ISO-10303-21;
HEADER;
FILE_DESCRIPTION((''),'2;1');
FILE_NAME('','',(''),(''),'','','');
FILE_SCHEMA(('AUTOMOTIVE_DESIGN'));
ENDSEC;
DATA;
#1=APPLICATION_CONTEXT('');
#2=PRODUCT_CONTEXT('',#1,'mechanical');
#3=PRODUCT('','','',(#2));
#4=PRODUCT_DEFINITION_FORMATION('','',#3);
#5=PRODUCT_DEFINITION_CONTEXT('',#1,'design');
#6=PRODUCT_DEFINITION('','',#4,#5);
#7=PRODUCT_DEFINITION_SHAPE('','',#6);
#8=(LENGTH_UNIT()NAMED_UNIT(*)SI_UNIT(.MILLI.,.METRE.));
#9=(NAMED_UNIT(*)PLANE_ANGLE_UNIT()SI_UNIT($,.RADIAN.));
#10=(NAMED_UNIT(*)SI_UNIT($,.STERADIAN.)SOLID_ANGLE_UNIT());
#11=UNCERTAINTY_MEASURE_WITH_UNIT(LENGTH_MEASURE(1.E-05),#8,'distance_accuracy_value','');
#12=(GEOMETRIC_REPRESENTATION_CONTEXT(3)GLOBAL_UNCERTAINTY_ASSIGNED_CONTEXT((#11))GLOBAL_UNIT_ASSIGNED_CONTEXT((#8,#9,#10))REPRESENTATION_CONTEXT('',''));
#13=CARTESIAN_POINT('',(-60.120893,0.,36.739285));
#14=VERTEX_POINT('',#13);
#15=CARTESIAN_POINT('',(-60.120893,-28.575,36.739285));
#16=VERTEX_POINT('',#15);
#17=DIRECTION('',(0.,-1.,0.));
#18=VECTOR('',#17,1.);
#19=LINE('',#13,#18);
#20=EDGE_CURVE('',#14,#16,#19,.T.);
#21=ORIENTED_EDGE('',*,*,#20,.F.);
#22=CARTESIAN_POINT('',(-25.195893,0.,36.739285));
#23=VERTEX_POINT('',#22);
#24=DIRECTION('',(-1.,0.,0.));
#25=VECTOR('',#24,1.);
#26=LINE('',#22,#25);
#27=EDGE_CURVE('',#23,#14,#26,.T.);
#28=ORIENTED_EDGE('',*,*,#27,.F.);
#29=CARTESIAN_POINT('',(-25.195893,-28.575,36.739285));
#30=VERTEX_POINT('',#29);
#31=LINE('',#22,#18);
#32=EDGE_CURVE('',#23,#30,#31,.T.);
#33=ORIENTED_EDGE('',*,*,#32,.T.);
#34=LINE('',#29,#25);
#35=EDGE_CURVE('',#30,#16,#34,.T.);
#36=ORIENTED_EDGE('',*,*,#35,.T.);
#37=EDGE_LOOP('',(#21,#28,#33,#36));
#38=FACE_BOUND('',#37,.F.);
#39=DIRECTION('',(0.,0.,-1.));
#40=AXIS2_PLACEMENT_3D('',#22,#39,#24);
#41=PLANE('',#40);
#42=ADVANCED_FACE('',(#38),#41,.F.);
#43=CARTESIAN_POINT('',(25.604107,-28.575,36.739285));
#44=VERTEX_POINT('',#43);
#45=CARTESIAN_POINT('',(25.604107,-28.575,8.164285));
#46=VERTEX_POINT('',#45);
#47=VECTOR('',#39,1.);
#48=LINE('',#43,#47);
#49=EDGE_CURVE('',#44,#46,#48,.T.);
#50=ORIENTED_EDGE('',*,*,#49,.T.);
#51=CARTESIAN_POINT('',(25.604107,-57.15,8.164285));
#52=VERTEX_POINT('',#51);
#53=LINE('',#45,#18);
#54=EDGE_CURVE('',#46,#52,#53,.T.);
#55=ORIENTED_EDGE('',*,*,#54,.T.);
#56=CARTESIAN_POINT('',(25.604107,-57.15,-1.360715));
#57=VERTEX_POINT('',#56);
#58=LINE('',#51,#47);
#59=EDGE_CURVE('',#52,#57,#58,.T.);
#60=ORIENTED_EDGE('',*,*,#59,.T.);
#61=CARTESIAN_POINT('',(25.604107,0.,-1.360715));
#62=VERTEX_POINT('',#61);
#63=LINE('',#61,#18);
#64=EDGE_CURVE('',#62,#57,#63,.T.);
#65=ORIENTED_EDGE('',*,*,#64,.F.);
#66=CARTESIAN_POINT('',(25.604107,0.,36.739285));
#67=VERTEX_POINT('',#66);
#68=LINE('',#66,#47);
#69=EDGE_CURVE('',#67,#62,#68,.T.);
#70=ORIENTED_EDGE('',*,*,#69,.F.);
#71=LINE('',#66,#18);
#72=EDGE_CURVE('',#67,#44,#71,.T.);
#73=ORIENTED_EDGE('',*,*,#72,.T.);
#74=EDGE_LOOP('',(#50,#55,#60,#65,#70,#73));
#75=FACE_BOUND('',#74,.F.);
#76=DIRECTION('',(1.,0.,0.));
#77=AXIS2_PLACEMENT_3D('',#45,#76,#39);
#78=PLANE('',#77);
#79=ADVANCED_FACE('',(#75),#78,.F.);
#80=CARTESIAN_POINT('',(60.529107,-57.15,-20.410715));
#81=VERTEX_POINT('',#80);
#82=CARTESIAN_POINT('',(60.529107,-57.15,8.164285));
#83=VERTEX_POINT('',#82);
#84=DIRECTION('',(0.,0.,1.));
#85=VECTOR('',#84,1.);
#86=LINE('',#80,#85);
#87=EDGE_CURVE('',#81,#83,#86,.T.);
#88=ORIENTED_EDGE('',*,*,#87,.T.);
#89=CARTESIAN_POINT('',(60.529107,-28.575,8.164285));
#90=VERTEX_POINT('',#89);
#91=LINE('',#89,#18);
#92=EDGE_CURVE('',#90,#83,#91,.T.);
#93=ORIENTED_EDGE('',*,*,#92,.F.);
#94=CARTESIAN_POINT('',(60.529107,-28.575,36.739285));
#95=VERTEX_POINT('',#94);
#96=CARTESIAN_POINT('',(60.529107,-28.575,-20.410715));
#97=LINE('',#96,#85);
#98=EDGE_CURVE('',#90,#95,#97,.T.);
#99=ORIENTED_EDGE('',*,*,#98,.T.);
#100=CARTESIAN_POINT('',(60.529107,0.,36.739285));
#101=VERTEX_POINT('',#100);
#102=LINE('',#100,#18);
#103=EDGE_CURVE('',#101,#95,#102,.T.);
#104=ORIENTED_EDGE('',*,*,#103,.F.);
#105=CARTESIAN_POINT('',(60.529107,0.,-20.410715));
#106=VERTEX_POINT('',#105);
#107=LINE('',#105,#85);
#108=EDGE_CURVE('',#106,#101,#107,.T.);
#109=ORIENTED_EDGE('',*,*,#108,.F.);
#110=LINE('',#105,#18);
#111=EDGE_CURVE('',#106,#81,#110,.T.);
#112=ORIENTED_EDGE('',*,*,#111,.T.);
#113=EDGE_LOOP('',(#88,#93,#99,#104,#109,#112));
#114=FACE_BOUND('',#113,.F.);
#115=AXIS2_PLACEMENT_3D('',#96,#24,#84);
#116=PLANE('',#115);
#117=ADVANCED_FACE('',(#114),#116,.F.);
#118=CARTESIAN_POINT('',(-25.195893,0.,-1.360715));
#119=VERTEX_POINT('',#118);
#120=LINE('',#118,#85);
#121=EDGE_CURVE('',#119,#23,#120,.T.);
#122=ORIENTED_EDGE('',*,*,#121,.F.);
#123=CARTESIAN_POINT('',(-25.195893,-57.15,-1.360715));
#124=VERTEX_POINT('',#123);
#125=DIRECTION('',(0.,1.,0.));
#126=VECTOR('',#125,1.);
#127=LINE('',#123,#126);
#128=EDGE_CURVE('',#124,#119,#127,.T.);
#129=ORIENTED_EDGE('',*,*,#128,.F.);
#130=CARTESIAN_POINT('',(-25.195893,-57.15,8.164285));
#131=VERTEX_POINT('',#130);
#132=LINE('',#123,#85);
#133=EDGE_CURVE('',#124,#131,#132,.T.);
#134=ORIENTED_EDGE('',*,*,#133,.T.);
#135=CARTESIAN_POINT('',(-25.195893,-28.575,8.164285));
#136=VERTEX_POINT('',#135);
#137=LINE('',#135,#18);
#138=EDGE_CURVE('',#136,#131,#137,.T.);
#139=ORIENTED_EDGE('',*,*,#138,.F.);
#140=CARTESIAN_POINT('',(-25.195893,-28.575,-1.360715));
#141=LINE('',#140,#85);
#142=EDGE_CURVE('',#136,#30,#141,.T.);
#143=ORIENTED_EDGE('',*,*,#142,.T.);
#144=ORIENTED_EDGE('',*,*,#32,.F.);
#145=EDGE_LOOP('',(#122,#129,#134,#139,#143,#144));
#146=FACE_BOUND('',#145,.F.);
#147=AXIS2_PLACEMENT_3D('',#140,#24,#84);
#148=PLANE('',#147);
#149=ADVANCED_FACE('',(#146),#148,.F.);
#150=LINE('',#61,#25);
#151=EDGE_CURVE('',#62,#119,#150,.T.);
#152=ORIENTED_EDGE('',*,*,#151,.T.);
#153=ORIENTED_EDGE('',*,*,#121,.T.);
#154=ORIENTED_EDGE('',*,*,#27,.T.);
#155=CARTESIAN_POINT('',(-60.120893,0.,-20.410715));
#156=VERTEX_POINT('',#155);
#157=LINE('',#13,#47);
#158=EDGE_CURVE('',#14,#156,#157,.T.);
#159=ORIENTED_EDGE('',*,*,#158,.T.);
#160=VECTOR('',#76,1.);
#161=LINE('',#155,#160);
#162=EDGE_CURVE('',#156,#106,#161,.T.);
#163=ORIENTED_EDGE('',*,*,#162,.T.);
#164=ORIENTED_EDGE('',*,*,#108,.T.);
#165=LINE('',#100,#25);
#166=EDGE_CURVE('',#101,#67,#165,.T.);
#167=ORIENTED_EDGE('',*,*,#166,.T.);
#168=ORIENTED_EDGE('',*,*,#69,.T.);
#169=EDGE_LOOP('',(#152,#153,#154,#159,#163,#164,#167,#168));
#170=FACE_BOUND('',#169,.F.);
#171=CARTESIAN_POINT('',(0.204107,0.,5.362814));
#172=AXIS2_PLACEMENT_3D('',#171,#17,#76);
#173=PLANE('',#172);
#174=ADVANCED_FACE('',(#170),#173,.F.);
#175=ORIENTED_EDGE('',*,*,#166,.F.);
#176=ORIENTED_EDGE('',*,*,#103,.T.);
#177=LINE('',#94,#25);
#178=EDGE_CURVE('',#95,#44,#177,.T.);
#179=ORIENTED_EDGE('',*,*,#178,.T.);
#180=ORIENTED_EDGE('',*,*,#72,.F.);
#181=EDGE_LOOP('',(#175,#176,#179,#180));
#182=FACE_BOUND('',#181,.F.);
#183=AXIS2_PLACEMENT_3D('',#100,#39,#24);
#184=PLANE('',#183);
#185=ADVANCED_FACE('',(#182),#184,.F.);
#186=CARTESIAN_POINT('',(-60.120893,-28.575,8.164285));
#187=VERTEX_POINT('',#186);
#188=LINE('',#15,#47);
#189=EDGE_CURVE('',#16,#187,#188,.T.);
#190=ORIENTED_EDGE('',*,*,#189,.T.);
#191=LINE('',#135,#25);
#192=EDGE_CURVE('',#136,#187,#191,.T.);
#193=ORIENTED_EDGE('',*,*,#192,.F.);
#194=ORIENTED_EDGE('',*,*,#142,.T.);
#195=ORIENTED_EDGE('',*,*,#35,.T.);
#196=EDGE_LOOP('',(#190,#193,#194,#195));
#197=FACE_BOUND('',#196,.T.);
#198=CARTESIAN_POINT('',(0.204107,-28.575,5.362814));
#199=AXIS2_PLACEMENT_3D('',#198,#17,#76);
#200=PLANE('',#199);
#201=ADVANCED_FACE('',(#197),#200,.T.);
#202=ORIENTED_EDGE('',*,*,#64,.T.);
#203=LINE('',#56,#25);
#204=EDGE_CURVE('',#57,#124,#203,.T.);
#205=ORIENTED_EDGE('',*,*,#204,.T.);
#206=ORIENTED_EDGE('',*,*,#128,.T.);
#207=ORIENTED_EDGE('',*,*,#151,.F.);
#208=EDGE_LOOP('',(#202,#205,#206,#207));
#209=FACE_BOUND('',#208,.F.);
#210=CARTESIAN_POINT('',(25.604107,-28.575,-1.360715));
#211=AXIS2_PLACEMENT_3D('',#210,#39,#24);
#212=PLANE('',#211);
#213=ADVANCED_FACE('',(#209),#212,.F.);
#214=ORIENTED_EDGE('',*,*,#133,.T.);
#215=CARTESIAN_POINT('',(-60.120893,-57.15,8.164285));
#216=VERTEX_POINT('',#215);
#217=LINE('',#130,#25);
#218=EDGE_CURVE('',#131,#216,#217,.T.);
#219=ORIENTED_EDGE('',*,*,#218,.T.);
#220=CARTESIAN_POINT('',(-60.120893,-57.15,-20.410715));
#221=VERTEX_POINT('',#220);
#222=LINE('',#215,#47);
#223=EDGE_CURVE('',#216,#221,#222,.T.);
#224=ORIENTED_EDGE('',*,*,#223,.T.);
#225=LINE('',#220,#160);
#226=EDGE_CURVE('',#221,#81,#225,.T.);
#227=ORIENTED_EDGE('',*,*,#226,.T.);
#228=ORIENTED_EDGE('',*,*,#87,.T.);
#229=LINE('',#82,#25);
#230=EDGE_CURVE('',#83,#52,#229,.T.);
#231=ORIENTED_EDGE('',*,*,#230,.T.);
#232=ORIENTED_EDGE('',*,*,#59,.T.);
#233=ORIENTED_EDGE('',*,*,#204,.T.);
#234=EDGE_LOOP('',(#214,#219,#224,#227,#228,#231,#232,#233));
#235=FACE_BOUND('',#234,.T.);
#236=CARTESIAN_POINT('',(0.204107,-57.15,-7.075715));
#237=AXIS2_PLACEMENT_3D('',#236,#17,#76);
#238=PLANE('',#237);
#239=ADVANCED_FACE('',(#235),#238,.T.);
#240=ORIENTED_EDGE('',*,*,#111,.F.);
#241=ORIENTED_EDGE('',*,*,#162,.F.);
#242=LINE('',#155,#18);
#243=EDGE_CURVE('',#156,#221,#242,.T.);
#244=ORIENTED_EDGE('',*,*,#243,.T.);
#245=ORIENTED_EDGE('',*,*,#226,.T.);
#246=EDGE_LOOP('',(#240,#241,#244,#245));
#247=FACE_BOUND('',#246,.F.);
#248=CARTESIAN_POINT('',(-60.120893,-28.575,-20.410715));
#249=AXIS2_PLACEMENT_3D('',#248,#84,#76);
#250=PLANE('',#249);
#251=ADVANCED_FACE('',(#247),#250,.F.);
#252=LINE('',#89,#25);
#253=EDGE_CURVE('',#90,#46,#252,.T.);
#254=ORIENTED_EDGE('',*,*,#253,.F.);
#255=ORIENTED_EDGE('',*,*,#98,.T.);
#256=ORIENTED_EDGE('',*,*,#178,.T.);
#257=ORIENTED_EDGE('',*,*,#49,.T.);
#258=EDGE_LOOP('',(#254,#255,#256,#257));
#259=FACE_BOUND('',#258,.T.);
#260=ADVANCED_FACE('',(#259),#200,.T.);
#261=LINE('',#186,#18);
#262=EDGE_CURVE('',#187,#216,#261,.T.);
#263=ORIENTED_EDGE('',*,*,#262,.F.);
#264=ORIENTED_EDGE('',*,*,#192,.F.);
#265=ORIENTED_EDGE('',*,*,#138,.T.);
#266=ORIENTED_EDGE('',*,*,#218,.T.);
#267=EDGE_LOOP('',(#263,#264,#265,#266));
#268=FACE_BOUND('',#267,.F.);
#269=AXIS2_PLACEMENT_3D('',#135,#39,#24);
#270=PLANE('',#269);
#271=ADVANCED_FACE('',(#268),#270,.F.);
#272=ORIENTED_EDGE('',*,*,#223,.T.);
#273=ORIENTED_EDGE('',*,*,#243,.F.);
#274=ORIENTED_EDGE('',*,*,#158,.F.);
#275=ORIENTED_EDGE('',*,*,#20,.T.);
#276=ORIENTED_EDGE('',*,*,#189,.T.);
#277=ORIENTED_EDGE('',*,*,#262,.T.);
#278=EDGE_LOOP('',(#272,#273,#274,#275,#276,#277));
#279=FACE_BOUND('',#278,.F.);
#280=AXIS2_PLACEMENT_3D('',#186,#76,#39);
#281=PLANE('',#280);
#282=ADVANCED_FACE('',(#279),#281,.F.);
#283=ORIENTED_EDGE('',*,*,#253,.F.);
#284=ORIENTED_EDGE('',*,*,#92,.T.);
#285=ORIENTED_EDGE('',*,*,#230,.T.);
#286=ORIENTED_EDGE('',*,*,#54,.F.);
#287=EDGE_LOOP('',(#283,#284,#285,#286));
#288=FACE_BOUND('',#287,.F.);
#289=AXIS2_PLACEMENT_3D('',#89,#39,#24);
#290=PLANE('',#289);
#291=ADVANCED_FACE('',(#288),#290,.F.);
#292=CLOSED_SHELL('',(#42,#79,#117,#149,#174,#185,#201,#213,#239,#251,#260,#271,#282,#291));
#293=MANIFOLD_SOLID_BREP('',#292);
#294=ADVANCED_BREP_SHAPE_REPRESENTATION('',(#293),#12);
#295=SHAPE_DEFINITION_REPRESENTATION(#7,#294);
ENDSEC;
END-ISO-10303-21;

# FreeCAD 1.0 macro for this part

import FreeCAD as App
import Part
import Sketcher
from FreeCAD import Vector
Q = App.Units.Quantity


def add_polygon(sketch, points):
    """Adds a closed chain of lines whose ends are joined by coincident constraints."""
    first, n = sketch.GeometryCount, len(points)
    for a, b in zip(points, points[1:] + points[:1]):
        sketch.addGeometry(Part.LineSegment(App.Vector(*a, 0), App.Vector(*b, 0)), False)
    for i in range(n):
        sketch.addConstraint(Sketcher.Constraint("Coincident", first + i, 2, first + (i + 1) % n, 1))

doc = App.newDocument("Part")
body = doc.addObject("PartDesign::Body", "Body")

# Sketch on XZ plane
sketch1 = body.newObject("Sketcher::SketchObject", "Sketch")
sketch1.AttachmentSupport = (doc.getObject("XZ_Plane"), [""])
sketch1.MapMode = "FlatFace"
add_polygon(sketch1, [(-60, 37), (-60, -20), (61, -20), (61, 37), (26, 37), (26, -1), (-25, -1), (-25, 37)])  # lines 0-7
sketch1.addConstraint(Sketcher.Constraint("Vertical", 0))
sketch1.addConstraint(Sketcher.Constraint("Horizontal", 1))
sketch1.addConstraint(Sketcher.Constraint("Vertical", 2))
sketch1.addConstraint(Sketcher.Constraint("Horizontal", 3))
sketch1.addConstraint(Sketcher.Constraint("Vertical", 4))
sketch1.addConstraint(Sketcher.Constraint("Horizontal", 5))
sketch1.addConstraint(Sketcher.Constraint("Vertical", 6))
sketch1.addConstraint(Sketcher.Constraint("Horizontal", 7))
sketch1.addConstraint(Sketcher.Constraint("Horizontal", 3, 2, 6, 2))
sketch1.addConstraint(Sketcher.Constraint("Equal", 3, 7))
sketch1.addConstraint(Sketcher.Constraint("DistanceX", 5, 2, 5, 1, Q("2 in")))
sketch1.addConstraint(Sketcher.Constraint("DistanceY", 4, 2, 4, 1, Q("1.5 in")))
sketch1.addConstraint(Sketcher.Constraint("DistanceX", 1, 1, 1, 2, Q("4.75 in")))
sketch1.addConstraint(Sketcher.Constraint("DistanceY", 0, 2, 0, 1, Q("2.25 in")))
sketch1.addConstraint(Sketcher.Constraint("DistanceX", 0, 2, -1, 1, 60.120893))
sketch1.addConstraint(Sketcher.Constraint("DistanceY", 0, 2, -1, 1, 20.410715))
pad1 = body.newObject("PartDesign::Pad", "Pad")
pad1.Profile = sketch1
pad1.Length = Q("1.125 in")

# Sketch on XZ plane
sketch2 = body.newObject("Sketcher::SketchObject", "Sketch001")
sketch2.AttachmentSupport = (doc.getObject("XZ_Plane"), [""])
sketch2.MapMode = "FlatFace"
sketch2.AttachmentOffset = App.Placement(Vector(0, 0, 1.125 * 25.4), App.Rotation())
add_polygon(sketch2, [(-60, 8), (-60, -20), (61, -20), (61, 8), (26, 8), (26, -1), (-25, -1), (-25, 8)])  # lines 0-7
sketch2.addConstraint(Sketcher.Constraint("Vertical", 0))
sketch2.addConstraint(Sketcher.Constraint("Horizontal", 1))
sketch2.addConstraint(Sketcher.Constraint("Vertical", 2))
sketch2.addConstraint(Sketcher.Constraint("Horizontal", 3))
sketch2.addConstraint(Sketcher.Constraint("Vertical", 4))
sketch2.addConstraint(Sketcher.Constraint("Horizontal", 5))
sketch2.addConstraint(Sketcher.Constraint("Vertical", 6))
sketch2.addConstraint(Sketcher.Constraint("Horizontal", 7))
sketch2.addConstraint(Sketcher.Constraint("Horizontal", 3, 2, 6, 2))
sketch2.addConstraint(Sketcher.Constraint("Equal", 3, 7))
sketch2.addConstraint(Sketcher.Constraint("DistanceX", 5, 2, 5, 1, Q("2 in")))
sketch2.addConstraint(Sketcher.Constraint("DistanceX", 1, 1, 1, 2, Q("4.75 in")))
sketch2.addConstraint(Sketcher.Constraint("DistanceY", 0, 2, 0, 1, Q("1.125 in")))
sketch2.addConstraint(Sketcher.Constraint("DistanceY", 4, 2, 4, 1, Q("0.375 in")))
sketch2.addConstraint(Sketcher.Constraint("DistanceX", 0, 2, -1, 1, 60.120893))
sketch2.addConstraint(Sketcher.Constraint("DistanceY", 0, 2, -1, 1, 20.410715))
pad2 = body.newObject("PartDesign::Pad", "Pad001")
pad2.Profile = sketch2
pad2.Length = Q("1.125 in")

doc.recompute()
